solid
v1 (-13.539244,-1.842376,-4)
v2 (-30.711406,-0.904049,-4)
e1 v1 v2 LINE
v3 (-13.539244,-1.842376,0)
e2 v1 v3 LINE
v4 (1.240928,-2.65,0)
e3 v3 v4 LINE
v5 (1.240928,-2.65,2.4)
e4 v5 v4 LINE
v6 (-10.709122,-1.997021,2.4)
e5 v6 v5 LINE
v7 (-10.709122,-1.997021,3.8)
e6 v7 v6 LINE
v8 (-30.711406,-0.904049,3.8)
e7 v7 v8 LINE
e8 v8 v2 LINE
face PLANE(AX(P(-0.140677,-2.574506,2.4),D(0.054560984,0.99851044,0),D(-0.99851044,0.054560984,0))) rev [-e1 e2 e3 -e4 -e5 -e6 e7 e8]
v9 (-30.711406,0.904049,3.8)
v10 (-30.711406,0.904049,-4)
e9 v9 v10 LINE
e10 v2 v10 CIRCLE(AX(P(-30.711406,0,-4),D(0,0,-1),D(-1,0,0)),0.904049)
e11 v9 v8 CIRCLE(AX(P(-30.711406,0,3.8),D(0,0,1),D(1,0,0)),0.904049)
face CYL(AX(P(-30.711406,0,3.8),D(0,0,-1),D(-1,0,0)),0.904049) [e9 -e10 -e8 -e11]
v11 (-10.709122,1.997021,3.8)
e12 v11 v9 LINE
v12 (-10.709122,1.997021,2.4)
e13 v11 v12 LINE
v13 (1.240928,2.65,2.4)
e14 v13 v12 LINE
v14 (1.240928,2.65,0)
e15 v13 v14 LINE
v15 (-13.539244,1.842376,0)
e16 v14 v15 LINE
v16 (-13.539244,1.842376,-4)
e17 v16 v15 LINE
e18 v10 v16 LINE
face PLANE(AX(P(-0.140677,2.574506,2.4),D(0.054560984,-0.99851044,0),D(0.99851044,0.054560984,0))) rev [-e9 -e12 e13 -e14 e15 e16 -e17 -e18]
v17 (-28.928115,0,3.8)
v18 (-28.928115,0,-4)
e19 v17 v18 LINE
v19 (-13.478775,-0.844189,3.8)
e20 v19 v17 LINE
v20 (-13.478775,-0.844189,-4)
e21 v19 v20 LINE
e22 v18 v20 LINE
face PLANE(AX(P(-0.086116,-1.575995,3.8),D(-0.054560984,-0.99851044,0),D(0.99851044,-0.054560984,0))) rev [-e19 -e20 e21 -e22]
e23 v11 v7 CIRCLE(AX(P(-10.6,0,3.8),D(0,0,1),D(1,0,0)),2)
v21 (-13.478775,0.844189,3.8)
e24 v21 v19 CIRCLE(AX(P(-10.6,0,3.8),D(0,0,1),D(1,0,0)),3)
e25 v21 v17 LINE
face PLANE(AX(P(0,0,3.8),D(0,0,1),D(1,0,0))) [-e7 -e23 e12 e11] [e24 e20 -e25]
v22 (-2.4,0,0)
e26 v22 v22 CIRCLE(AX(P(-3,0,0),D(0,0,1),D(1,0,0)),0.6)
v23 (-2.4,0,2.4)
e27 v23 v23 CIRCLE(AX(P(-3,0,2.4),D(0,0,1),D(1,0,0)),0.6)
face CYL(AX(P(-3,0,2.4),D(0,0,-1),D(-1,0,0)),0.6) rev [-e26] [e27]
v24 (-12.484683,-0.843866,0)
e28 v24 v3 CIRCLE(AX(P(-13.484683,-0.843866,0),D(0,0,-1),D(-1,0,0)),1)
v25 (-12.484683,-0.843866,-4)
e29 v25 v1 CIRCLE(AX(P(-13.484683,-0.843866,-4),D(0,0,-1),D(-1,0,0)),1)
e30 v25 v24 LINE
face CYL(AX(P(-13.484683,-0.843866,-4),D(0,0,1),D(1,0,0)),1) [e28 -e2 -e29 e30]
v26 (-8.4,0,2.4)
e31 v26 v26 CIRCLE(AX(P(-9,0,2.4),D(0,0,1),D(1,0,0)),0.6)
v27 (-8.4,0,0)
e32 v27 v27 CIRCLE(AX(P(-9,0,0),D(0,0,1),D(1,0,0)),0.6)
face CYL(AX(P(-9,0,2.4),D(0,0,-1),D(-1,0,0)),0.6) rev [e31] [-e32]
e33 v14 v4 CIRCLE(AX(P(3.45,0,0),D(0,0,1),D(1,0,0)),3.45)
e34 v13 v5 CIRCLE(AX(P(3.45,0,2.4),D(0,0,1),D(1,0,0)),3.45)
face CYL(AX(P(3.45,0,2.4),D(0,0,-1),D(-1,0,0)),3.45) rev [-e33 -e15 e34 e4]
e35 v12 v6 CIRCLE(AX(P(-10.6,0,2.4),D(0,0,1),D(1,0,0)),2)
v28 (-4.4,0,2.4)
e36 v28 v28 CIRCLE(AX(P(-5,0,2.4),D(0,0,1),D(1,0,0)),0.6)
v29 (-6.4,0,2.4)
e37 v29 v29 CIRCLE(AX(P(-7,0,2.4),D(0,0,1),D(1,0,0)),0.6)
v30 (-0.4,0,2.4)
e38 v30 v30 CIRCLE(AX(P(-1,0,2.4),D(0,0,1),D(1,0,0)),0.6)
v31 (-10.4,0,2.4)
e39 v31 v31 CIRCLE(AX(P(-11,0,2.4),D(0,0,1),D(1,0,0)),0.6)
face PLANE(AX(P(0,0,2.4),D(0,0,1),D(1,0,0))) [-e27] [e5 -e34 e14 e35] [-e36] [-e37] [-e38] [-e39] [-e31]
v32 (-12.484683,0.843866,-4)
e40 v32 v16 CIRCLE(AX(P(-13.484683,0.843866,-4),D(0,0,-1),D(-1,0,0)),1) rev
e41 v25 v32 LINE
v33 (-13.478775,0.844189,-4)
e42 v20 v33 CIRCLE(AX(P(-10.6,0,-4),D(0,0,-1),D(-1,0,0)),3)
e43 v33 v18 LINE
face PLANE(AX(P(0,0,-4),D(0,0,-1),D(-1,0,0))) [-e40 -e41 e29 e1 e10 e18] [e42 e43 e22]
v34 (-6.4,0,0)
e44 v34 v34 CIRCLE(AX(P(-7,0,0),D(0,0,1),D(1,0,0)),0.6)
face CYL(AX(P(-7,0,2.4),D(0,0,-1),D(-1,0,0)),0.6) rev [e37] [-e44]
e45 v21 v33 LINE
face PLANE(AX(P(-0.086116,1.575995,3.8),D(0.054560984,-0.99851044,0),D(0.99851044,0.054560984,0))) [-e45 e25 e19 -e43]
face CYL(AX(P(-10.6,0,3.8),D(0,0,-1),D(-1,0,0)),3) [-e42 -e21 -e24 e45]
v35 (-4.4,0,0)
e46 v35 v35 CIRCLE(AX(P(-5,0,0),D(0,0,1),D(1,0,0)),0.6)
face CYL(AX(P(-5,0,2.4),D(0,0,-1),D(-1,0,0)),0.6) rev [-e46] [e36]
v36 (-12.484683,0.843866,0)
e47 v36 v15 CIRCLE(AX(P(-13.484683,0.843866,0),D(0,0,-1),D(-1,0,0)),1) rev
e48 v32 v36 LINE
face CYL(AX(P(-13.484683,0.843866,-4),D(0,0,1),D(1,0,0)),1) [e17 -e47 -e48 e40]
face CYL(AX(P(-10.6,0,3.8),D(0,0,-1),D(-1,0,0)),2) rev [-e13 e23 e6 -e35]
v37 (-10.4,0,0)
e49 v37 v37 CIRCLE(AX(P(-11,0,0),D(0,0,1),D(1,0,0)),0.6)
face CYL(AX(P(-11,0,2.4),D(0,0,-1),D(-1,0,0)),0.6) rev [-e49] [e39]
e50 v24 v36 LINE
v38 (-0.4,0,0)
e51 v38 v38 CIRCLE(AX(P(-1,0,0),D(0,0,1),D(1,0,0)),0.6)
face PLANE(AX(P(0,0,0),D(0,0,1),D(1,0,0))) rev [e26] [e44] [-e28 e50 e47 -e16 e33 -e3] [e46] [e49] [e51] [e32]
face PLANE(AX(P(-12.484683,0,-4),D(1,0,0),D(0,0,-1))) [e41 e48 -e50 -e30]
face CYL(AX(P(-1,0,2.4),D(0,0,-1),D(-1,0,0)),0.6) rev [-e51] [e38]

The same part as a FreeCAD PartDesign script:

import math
import FreeCAD as App
import Part
import Sketcher

V = App.Vector

doc = App.newDocument("Part")
body = doc.addObject("PartDesign::Body", "Body")

sketch1 = body.newObject("Sketcher::SketchObject", "Sketch")
sketch1.AttachmentSupport = (doc.getObject("XY_Plane"), [""])
sketch1.MapMode = "FlatFace"
sketch1.addGeometry(Part.LineSegment(V(1.240928, 2.65, 0), V(-10.709122, 1.997021, 0)), False)
sketch1.addGeometry(Part.ArcOfCircle(Part.Circle(V(-10.6, 0, 0), V(0, 0, 1), 2), math.radians(93.127667), math.radians(266.872333)), False)
sketch1.addGeometry(Part.LineSegment(V(-10.709122, -1.997021, 0), V(1.240928, -2.65, 0)), False)
sketch1.addGeometry(Part.ArcOfCircle(Part.Circle(V(3.45, 0, 0), V(0, 0, 1), 3.45), math.radians(129.814998), math.radians(230.185002)), False)
sketch1.addGeometry(Part.Circle(V(-11, 0, 0), V(0, 0, 1), 0.6), False)
sketch1.addGeometry(Part.Circle(V(-9, 0, 0), V(0, 0, 1), 0.6), False)
sketch1.addGeometry(Part.Circle(V(-7, 0, 0), V(0, 0, 1), 0.6), False)
sketch1.addGeometry(Part.Circle(V(-5, 0, 0), V(0, 0, 1), 0.6), False)
sketch1.addGeometry(Part.Circle(V(-3, 0, 0), V(0, 0, 1), 0.6), False)
sketch1.addGeometry(Part.Circle(V(-1, 0, 0), V(0, 0, 1), 0.6), False)
sketch1.addConstraint(Sketcher.Constraint("Tangent", 0, 2, 1, 1))
sketch1.addConstraint(Sketcher.Constraint("Tangent", 1, 2, 2, 1))
sketch1.addConstraint(Sketcher.Constraint("Coincident", 2, 2, 3, 2))
sketch1.addConstraint(Sketcher.Constraint("Coincident", 3, 1, 0, 1))
sketch1.addConstraint(Sketcher.Constraint("Equal", 4, 5))
sketch1.addConstraint(Sketcher.Constraint("Equal", 5, 6))
sketch1.addConstraint(Sketcher.Constraint("Equal", 6, 7))
sketch1.addConstraint(Sketcher.Constraint("Equal", 7, 8))
sketch1.addConstraint(Sketcher.Constraint("Equal", 8, 9))
sketch1.addConstraint(Sketcher.Constraint("Symmetric", 0, 2, 1, 2, -1))
sketch1.addConstraint(Sketcher.Constraint("PointOnObject", 3, 3, -1))
sketch1.addConstraint(Sketcher.Constraint("PointOnObject", 4, 3, -1))
sketch1.addConstraint(Sketcher.Constraint("PointOnObject", 5, 3, -1))
sketch1.addConstraint(Sketcher.Constraint("PointOnObject", 6, 3, -1))
sketch1.addConstraint(Sketcher.Constraint("PointOnObject", 7, 3, -1))
sketch1.addConstraint(Sketcher.Constraint("PointOnObject", 8, 3, -1))
sketch1.addConstraint(Sketcher.Constraint("PointOnObject", 9, 3, -1))
sketch1.addConstraint(Sketcher.Constraint("Radius", 1, 2.0))
sketch1.addConstraint(Sketcher.Constraint("Diameter", 4, 1.2))
sketch1.addConstraint(Sketcher.Constraint("Radius", 3, 3.45))
sketch1.addConstraint(Sketcher.Constraint("DistanceX", 4, 3, -1, 1, 11.0))
sketch1.addConstraint(Sketcher.Constraint("DistanceX", 5, 3, -1, 1, 9.0))
sketch1.addConstraint(Sketcher.Constraint("DistanceX", 6, 3, -1, 1, 7.0))
sketch1.addConstraint(Sketcher.Constraint("DistanceX", 7, 3, -1, 1, 5.0))
sketch1.addConstraint(Sketcher.Constraint("DistanceX", 8, 3, -1, 1, 3.0))
sketch1.addConstraint(Sketcher.Constraint("DistanceX", 9, 3, -1, 1, 1.0))
sketch1.addConstraint(Sketcher.Constraint("DistanceX", 1, 3, -1, 1, 10.6))
sketch1.addConstraint(Sketcher.Constraint("DistanceY", 2, 2, 3, 1, 5.3))
sketch1.addConstraint(Sketcher.Constraint("DistanceX", -1, 1, 3, 3, 3.45))
pad1 = body.newObject("PartDesign::Pad", "Pad")
pad1.Profile = sketch1
pad1.Length = 2.4

sketch2 = body.newObject("Sketcher::SketchObject", "Sketch001")
sketch2.AttachmentSupport = (doc.getObject("XY_Plane"), [""])
sketch2.MapMode = "FlatFace"
sketch2.addGeometry(Part.LineSegment(V(-10.709122, 1.997021, 0), V(-30.711406, 0.904049, 0)), False)
sketch2.addGeometry(Part.ArcOfCircle(Part.Circle(V(-30.711406, 0, 0), V(0, 0, 1), 0.904049), math.radians(90), math.radians(270)), False)
sketch2.addGeometry(Part.LineSegment(V(-30.711406, -0.904049, 0), V(-10.709122, -1.997021, 0)), False)
sketch2.addGeometry(Part.ArcOfCircle(Part.Circle(V(-10.6, 0, 0), V(0, 0, 1), 2), math.radians(93.127667), math.radians(266.872333)), False)
sketch2.addGeometry(Part.LineSegment(V(-28.928115, 0, 0), V(-13.478775, 0.844189, 0)), False)
sketch2.addGeometry(Part.ArcOfCircle(Part.Circle(V(-10.6, 0, 0), V(0, 0, 1), 3), math.radians(163.656447), math.radians(196.343553)), False)
sketch2.addGeometry(Part.LineSegment(V(-13.478775, -0.844189, 0), V(-28.928115, 0, 0)), False)
sketch2.addConstraint(Sketcher.Constraint("Coincident", 0, 2, 1, 1))
sketch2.addConstraint(Sketcher.Constraint("Coincident", 1, 2, 2, 1))
sketch2.addConstraint(Sketcher.Constraint("Tangent", 2, 2, 3, 2))
sketch2.addConstraint(Sketcher.Constraint("Tangent", 3, 1, 0, 1))
sketch2.addConstraint(Sketcher.Constraint("Coincident", 4, 2, 5, 1))
sketch2.addConstraint(Sketcher.Constraint("Coincident", 5, 2, 6, 1))
sketch2.addConstraint(Sketcher.Constraint("Coincident", 6, 2, 4, 1))
sketch2.addConstraint(Sketcher.Constraint("Coincident", 5, 3, 3, 3))
sketch2.addConstraint(Sketcher.Constraint("Symmetric", 0, 2, 1, 2, -1))
sketch2.addConstraint(Sketcher.Constraint("Symmetric", 4, 2, 5, 2, -1))
sketch2.addConstraint(Sketcher.Constraint("PointOnObject", 6, 2, -1))
sketch2.addConstraint(Sketcher.Constraint("Parallel", 0, 4))
sketch2.addConstraint(Sketcher.Constraint("Vertical", 1, 3, 0, 2))
sketch2.addConstraint(Sketcher.Constraint("Radius", 3, 2.0))
sketch2.addConstraint(Sketcher.Constraint("Radius", 5, 3.0))
sketch2.addConstraint(Sketcher.Constraint("DistanceX", 3, 3, -1, 1, 10.6))
sketch2.addConstraint(Sketcher.Constraint("Radius", 1, 0.904049))
sketch2.addConstraint(Sketcher.Constraint("DistanceX", 2, 2, -1, 1, 10.709122))
sketch2.addConstraint(Sketcher.Constraint("DistanceY", -1, 1, 4, 2, 0.844189))
pad2 = body.newObject("PartDesign::Pad", "Pad001")
pad2.Profile = sketch2
pad2.Length = 3.8

sketch3 = body.newObject("Sketcher::SketchObject", "Sketch002")
sketch3.AttachmentSupport = (doc.getObject("XY_Plane"), [""])
sketch3.MapMode = "FlatFace"
sketch3.addGeometry(Part.LineSegment(V(-12.484683, 0.843866, 0), V(-12.484683, -0.843866, 0)), False)
sketch3.addGeometry(Part.ArcOfCircle(Part.Circle(V(-13.484683, -0.843866, 0), V(0, 0, 1), 1), math.radians(-93.127667), math.radians(0)), False)
sketch3.addGeometry(Part.LineSegment(V(-13.539244, -1.842376, 0), V(-30.711406, -0.904049, 0)), False)
sketch3.addGeometry(Part.ArcOfCircle(Part.Circle(V(-30.711406, 0, 0), V(0, 0, 1), 0.904049), math.radians(90), math.radians(270)), False)
sketch3.addGeometry(Part.LineSegment(V(-30.711406, 0.904049, 0), V(-13.539244, 1.842376, 0)), False)
sketch3.addGeometry(Part.ArcOfCircle(Part.Circle(V(-13.484683, 0.843866, 0), V(0, 0, 1), 1), math.radians(0), math.radians(93.127667)), False)
sketch3.addGeometry(Part.LineSegment(V(-13.478775, 0.844189, 0), V(-28.928115, 0, 0)), False)
sketch3.addGeometry(Part.LineSegment(V(-28.928115, 0, 0), V(-13.478775, -0.844189, 0)), False)
sketch3.addGeometry(Part.ArcOfCircle(Part.Circle(V(-10.6, 0, 0), V(0, 0, 1), 3), math.radians(163.656447), math.radians(196.343553)), False)
sketch3.addConstraint(Sketcher.Constraint("Tangent", 0, 2, 1, 2))
sketch3.addConstraint(Sketcher.Constraint("Tangent", 1, 1, 2, 1))
sketch3.addConstraint(Sketcher.Constraint("Coincident", 2, 2, 3, 2))
sketch3.addConstraint(Sketcher.Constraint("Coincident", 3, 1, 4, 1))
sketch3.addConstraint(Sketcher.Constraint("Tangent", 4, 2, 5, 2))
sketch3.addConstraint(Sketcher.Constraint("Tangent", 5, 1, 0, 1))
sketch3.addConstraint(Sketcher.Constraint("Coincident", 6, 2, 7, 1))
sketch3.addConstraint(Sketcher.Constraint("Coincident", 7, 2, 8, 2))
sketch3.addConstraint(Sketcher.Constraint("Coincident", 8, 1, 6, 1))
sketch3.addConstraint(Sketcher.Constraint("Vertical", 0))
sketch3.addConstraint(Sketcher.Constraint("Equal", 1, 5))
sketch3.addConstraint(Sketcher.Constraint("Symmetric", 2, 2, 3, 1, -1))
sketch3.addConstraint(Sketcher.Constraint("Symmetric", 7, 2, 8, 1, -1))
sketch3.addConstraint(Sketcher.Constraint("PointOnObject", 6, 2, -1))
sketch3.addConstraint(Sketcher.Constraint("Parallel", 4, 6))
sketch3.addConstraint(Sketcher.Constraint("Parallel", 2, 7))
sketch3.addConstraint(Sketcher.Constraint("Vertical", 3, 3, 2, 2))
sketch3.addConstraint(Sketcher.Constraint("Radius", 1, 1.0))
sketch3.addConstraint(Sketcher.Constraint("Radius", 8, 3.0))
sketch3.addConstraint(Sketcher.Constraint("DistanceX", 8, 3, -1, 1, 10.6))
sketch3.addConstraint(Sketcher.Constraint("Radius", 3, 0.904049))
sketch3.addConstraint(Sketcher.Constraint("DistanceY", 0, 2, 0, 1, 1.687732))
sketch3.addConstraint(Sketcher.Constraint("Distance", 2, 17.197779))
sketch3.addConstraint(Sketcher.Constraint("DistanceY", 7, 2, -1, 1, 0.844189))
sketch3.addConstraint(Sketcher.Constraint("DistanceX", 3, 3, 6, 2, 1.783291))
pad3 = body.newObject("PartDesign::Pad", "Pad002")
pad3.Profile = sketch3
pad3.Length = 4
pad3.Reversed = True

doc.recompute()
